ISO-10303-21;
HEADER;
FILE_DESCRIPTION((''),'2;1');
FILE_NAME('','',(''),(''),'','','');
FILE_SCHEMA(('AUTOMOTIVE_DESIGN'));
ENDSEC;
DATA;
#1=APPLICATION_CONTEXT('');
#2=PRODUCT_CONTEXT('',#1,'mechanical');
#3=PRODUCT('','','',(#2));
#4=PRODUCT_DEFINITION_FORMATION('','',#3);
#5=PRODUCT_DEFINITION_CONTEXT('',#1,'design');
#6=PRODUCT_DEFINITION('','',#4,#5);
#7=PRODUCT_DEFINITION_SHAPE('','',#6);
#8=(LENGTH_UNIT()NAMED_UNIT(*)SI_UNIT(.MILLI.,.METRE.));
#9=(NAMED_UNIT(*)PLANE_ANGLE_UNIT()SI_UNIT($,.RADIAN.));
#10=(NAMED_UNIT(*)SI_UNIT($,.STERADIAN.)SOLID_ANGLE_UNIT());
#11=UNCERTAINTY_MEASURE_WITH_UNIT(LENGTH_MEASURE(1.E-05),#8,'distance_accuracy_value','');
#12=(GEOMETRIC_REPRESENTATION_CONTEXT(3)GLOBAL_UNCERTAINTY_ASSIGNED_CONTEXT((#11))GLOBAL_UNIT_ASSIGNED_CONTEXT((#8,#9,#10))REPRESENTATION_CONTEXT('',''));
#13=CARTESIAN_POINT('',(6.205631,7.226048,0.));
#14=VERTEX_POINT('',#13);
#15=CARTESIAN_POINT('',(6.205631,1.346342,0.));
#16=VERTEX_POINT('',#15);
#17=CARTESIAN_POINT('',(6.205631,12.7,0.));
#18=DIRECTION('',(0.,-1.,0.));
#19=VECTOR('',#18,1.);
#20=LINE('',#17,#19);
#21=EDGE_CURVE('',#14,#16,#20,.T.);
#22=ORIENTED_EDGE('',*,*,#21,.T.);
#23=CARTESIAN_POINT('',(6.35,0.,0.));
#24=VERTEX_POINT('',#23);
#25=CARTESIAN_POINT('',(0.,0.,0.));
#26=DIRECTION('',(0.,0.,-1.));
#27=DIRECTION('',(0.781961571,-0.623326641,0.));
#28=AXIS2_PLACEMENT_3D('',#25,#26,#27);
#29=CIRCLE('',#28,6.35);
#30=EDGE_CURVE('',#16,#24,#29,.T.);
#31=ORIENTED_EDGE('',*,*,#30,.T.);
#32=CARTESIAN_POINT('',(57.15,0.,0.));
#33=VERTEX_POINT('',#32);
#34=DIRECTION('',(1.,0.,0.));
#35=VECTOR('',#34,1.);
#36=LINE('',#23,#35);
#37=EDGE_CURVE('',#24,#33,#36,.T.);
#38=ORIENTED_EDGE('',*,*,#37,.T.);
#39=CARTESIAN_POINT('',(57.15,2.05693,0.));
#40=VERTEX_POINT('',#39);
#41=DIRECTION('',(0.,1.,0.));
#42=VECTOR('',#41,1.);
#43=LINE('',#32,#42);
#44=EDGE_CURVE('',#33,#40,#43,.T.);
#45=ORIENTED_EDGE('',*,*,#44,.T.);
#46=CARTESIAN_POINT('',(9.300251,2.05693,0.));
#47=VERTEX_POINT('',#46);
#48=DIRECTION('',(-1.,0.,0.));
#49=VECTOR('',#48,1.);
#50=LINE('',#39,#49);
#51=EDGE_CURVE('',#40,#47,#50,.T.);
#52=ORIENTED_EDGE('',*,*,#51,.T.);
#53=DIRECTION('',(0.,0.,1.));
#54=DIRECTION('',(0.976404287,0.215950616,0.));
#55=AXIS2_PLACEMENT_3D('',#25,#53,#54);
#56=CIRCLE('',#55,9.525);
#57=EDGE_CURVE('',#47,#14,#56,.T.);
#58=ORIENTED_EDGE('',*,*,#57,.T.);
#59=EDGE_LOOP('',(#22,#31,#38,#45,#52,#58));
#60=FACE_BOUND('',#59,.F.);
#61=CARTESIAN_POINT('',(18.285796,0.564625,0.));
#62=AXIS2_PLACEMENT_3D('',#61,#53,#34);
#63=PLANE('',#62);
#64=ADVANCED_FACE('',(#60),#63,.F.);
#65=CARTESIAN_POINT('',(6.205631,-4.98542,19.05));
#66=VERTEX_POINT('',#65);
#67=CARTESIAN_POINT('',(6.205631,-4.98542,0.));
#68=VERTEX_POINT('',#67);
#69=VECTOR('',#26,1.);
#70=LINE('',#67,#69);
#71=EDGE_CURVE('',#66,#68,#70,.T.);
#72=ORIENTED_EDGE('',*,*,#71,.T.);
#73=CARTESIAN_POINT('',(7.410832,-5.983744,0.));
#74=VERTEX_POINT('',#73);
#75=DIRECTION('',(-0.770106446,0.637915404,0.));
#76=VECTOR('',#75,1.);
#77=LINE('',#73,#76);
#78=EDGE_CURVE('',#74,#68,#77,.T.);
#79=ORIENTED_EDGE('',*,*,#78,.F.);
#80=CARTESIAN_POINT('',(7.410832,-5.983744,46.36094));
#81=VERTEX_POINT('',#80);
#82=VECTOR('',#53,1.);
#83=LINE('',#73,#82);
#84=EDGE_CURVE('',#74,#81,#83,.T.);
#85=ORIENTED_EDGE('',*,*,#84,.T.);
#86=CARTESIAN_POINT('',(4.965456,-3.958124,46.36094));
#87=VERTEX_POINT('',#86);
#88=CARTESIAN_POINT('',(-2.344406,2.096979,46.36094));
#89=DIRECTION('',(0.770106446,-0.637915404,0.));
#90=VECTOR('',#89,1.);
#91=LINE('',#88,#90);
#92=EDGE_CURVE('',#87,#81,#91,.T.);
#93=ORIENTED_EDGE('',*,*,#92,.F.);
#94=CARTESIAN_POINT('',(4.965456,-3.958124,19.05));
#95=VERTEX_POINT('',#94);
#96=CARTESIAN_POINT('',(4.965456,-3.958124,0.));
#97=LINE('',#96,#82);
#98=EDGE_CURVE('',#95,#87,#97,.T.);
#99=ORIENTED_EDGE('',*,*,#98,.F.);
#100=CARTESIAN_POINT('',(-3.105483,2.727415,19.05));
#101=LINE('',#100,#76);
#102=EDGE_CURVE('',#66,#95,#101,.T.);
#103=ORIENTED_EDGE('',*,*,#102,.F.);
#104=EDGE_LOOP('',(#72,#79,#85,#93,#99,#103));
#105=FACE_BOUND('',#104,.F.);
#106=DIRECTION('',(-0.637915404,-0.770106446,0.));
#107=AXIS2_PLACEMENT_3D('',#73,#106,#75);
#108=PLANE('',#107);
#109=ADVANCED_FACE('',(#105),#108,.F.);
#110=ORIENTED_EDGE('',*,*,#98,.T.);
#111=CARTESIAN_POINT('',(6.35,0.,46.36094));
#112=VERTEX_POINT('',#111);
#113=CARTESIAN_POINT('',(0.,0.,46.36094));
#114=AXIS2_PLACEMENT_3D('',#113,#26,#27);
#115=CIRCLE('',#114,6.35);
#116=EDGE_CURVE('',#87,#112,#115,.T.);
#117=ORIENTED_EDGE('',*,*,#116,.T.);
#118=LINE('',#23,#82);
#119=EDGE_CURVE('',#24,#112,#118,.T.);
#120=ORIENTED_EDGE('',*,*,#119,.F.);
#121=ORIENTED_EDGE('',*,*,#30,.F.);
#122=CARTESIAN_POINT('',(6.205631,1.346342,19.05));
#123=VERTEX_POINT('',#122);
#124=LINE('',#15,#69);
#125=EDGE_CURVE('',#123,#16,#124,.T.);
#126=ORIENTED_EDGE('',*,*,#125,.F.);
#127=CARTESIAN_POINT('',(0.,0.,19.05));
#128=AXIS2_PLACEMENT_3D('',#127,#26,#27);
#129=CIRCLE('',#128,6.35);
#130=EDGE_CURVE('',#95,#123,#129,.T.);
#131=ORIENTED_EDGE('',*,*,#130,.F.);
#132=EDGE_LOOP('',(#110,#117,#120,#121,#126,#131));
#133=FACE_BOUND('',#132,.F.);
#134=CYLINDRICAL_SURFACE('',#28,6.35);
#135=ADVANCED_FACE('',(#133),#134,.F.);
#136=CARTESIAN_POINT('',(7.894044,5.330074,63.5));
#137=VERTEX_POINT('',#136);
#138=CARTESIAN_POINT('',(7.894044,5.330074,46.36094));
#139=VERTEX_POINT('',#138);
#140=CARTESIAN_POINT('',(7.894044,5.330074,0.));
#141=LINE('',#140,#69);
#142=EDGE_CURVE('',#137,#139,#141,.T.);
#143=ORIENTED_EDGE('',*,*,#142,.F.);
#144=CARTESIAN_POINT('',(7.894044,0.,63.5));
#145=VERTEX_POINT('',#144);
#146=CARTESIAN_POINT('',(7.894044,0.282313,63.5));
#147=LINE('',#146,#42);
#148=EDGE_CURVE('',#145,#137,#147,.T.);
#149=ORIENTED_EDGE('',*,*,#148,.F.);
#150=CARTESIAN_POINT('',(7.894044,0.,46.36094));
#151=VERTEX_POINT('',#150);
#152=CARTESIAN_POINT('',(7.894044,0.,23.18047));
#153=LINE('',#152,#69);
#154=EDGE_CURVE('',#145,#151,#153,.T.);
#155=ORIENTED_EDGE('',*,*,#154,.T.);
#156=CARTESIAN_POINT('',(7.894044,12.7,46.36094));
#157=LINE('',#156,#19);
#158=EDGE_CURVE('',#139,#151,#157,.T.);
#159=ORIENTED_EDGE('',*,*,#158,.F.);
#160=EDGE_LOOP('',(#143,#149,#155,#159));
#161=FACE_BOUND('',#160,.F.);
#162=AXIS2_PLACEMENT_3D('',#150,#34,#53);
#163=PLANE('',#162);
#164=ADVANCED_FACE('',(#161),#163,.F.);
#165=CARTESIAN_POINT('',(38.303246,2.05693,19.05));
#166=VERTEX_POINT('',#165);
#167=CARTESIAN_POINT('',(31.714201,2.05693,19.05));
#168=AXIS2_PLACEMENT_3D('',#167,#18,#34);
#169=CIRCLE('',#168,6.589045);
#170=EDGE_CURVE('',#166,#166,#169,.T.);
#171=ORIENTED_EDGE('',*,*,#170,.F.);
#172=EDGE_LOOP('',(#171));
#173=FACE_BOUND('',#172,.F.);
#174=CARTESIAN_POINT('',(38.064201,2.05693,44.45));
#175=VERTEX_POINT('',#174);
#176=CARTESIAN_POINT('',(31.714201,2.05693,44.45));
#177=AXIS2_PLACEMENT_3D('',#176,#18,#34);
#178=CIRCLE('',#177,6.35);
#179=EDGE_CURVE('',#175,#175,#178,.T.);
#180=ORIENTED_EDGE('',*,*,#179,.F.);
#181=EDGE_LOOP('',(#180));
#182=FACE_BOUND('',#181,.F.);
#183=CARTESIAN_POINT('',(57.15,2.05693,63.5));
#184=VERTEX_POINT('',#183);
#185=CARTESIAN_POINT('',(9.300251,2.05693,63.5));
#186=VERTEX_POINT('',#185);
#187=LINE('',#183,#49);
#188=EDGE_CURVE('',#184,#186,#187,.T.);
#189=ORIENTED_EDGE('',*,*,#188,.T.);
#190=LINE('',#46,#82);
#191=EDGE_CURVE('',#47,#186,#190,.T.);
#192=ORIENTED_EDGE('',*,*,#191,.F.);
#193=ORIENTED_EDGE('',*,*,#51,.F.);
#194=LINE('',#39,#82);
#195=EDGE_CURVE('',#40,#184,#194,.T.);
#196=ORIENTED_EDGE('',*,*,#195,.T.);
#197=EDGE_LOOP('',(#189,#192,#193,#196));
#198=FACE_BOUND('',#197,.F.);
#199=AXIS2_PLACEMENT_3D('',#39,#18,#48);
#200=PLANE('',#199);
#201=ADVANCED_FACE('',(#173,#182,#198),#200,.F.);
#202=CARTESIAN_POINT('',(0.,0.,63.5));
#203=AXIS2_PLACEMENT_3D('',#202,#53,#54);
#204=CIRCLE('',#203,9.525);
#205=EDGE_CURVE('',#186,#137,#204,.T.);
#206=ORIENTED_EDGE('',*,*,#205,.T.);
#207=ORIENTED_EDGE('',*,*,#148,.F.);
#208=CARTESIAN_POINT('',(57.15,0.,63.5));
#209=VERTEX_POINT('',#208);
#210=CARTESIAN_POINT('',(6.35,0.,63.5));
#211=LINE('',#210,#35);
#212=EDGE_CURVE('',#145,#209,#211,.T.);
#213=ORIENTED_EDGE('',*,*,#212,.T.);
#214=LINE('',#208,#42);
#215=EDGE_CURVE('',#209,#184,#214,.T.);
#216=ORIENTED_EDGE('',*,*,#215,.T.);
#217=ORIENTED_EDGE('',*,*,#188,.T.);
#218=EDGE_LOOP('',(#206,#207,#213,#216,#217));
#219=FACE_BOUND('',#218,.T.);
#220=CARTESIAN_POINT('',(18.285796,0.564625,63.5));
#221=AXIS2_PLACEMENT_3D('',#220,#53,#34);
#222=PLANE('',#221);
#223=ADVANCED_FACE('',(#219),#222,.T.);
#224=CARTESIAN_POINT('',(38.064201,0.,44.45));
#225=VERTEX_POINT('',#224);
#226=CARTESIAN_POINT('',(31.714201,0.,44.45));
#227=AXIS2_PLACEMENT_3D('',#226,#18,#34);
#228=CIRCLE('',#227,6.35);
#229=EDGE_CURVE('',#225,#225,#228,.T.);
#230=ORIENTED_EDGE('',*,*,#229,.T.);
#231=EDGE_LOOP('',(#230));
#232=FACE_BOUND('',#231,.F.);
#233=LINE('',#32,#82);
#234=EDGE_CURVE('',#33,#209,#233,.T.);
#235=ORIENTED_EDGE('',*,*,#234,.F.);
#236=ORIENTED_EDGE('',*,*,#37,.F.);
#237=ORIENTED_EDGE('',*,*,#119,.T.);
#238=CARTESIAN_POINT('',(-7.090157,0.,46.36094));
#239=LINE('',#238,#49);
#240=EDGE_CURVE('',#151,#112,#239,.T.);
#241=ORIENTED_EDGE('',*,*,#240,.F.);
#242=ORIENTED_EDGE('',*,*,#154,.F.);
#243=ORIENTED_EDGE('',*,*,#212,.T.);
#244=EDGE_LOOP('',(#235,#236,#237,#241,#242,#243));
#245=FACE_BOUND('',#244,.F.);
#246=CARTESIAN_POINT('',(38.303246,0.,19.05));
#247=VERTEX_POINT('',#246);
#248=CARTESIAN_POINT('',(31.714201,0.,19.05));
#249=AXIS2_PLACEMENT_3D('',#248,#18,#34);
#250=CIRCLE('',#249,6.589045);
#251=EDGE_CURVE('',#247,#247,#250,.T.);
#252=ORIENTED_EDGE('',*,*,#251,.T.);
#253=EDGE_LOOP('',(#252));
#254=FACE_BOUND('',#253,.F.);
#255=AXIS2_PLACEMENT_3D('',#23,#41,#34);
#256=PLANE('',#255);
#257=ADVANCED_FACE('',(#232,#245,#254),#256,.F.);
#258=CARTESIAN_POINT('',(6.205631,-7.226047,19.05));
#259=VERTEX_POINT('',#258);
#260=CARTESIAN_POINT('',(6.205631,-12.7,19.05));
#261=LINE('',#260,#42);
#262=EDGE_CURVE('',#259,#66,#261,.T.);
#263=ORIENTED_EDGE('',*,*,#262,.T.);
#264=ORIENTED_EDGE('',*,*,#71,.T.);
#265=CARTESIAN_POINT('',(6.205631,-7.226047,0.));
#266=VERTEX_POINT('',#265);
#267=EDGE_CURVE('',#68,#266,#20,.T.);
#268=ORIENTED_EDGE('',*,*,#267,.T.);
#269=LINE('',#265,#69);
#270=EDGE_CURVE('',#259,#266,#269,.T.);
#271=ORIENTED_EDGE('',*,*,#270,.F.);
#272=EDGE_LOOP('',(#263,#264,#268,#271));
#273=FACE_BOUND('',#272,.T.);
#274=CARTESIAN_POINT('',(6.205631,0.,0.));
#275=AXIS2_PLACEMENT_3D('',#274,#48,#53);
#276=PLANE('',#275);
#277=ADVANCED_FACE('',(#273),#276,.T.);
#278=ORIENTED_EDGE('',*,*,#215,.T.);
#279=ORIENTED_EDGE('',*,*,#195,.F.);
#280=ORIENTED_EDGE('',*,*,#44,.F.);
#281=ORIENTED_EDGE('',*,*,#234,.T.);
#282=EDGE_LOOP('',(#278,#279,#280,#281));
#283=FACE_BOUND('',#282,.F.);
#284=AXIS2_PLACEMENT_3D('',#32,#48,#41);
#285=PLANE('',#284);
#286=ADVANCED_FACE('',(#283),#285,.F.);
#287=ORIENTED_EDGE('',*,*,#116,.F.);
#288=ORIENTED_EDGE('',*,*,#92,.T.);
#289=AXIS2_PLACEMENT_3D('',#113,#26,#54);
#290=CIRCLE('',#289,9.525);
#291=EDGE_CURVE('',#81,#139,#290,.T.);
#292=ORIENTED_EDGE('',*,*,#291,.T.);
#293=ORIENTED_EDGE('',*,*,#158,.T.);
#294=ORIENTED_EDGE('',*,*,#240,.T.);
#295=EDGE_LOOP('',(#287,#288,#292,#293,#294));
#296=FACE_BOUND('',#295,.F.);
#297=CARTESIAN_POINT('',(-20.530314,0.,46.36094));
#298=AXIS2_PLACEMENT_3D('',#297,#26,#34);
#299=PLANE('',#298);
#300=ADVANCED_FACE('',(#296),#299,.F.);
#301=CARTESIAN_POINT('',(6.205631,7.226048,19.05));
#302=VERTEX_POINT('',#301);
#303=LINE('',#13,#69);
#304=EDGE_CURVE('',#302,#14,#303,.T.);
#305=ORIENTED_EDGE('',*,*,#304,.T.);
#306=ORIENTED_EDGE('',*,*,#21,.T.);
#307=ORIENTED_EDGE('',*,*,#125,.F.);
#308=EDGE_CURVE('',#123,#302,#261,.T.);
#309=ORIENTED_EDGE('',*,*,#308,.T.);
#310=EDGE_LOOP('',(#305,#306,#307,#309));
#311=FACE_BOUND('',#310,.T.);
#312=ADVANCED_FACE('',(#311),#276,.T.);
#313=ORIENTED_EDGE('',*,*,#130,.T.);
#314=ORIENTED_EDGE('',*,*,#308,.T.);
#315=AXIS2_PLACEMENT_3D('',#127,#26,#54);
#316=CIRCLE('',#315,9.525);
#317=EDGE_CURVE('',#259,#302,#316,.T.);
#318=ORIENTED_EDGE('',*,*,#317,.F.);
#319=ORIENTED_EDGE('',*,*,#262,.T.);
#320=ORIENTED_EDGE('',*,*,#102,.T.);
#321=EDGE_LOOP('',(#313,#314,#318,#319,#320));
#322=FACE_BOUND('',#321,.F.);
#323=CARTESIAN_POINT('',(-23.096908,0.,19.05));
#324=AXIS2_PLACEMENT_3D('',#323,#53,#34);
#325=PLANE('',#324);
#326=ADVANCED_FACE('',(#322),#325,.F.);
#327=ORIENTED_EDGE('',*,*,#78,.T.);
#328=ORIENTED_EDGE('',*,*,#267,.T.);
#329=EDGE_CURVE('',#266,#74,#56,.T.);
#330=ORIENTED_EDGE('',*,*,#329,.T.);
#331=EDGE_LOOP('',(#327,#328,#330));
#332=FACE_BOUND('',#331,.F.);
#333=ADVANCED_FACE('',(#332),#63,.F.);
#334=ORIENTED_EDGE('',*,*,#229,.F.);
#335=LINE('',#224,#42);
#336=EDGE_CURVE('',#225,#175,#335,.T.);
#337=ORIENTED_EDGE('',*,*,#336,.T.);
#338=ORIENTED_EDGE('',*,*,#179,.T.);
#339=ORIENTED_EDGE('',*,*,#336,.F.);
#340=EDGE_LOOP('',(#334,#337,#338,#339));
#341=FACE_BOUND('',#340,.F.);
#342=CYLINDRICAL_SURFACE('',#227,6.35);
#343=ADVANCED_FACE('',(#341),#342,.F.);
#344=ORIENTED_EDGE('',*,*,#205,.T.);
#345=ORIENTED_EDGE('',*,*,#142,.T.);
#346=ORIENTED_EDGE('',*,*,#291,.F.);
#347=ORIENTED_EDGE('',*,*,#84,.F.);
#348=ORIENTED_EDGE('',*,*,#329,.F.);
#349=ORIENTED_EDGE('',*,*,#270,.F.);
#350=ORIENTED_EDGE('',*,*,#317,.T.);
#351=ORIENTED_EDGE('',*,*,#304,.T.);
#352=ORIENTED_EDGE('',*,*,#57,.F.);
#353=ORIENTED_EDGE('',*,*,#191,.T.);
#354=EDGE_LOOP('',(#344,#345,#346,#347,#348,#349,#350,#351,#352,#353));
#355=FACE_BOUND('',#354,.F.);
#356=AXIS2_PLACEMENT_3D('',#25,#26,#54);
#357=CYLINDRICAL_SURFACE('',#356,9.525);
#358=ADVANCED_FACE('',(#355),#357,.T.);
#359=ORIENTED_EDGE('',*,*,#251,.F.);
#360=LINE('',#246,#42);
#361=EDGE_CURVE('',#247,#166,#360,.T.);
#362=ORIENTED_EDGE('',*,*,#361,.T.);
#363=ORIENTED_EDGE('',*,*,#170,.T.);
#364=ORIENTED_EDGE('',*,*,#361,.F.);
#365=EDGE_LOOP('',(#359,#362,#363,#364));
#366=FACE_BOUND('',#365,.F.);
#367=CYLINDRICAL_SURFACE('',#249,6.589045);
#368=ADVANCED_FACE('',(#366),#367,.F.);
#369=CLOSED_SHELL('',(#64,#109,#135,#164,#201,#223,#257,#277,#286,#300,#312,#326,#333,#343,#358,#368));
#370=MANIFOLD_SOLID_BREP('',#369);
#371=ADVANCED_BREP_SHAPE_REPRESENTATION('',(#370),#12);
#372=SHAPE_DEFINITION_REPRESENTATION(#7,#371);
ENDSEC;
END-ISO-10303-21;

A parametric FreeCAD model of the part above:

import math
import FreeCAD as App
import Part
import Sketcher
Q = App.Units.Quantity

doc = App.newDocument("Part")
body = doc.addObject("PartDesign::Body", "Body")

# Sketch on XY plane
sketch1 = body.newObject("Sketcher::SketchObject", "Sketch")
sketch1.AttachmentSupport = (doc.getObject("XY_Plane"), [""])
sketch1.MapMode = "FlatFace"
sketch1.addGeometry(Part.ArcOfCircle(Part.Circle(App.Vector(0, 0, 0), App.Vector(0, 0, 1), 6.3), math.radians(0), math.radians(321)), False)
sketch1.addGeometry(Part.LineSegment(App.Vector(6.3, 0, 0), App.Vector(57.1, 0, 0)), False)
sketch1.addGeometry(Part.LineSegment(App.Vector(57.1, 0, 0), App.Vector(57.1, 2.1, 0)), False)
sketch1.addGeometry(Part.LineSegment(App.Vector(57.1, 2.1, 0), App.Vector(9.3, 2.1, 0)), False)
sketch1.addGeometry(Part.ArcOfCircle(Part.Circle(App.Vector(0, 0, 0), App.Vector(0, 0, 1), 9.5), math.radians(12), math.radians(321)), False)
sketch1.addGeometry(Part.LineSegment(App.Vector(7.4, -6, 0), App.Vector(5, -4, 0)), False)
sketch1.addConstraint(Sketcher.Constraint("Coincident", 0, 1, 1, 1))
sketch1.addConstraint(Sketcher.Constraint("Coincident", 1, 2, 2, 1))
sketch1.addConstraint(Sketcher.Constraint("Coincident", 2, 2, 3, 1))
sketch1.addConstraint(Sketcher.Constraint("Coincident", 3, 2, 4, 1))
sketch1.addConstraint(Sketcher.Constraint("Coincident", 4, 2, 5, 1))
sketch1.addConstraint(Sketcher.Constraint("Coincident", 5, 2, 0, 2))
sketch1.addConstraint(Sketcher.Constraint("Horizontal", 1))
sketch1.addConstraint(Sketcher.Constraint("Vertical", 2))
sketch1.addConstraint(Sketcher.Constraint("Horizontal", 3))
sketch1.addConstraint(Sketcher.Constraint("Coincident", 0, 3, -1, 1))
sketch1.addConstraint(Sketcher.Constraint("Coincident", 4, 3, -1, 1))
sketch1.addConstraint(Sketcher.Constraint("PointOnObject", 0, 1, -1))
sketch1.addConstraint(Sketcher.Constraint("DistanceX", 1, 1, 1, 2, Q("2 in")))
sketch1.addConstraint(Sketcher.Constraint("Radius", 0, Q("0.25 in")))
sketch1.addConstraint(Sketcher.Constraint("Radius", 4, Q("0.375 in")))
sketch1.addConstraint(Sketcher.Constraint("DistanceX", 3, 2, 3, 1, Q("47.849749 mm")))
sketch1.addConstraint(Sketcher.Constraint("DistanceX", 4, 2, 3, 2, Q("1.889419 mm")))
sketch1.addConstraint(Sketcher.Constraint("DistanceY", 4, 2, 5, 2, Q("2.02562 mm")))
pad1 = body.newObject("PartDesign::Pad", "Pad")
pad1.Profile = sketch1
pad1.Length = Q("2.5 in")

# Sketch on XZ plane
sketch2 = body.newObject("Sketcher::SketchObject", "Sketch001")
sketch2.AttachmentSupport = (doc.getObject("XZ_Plane"), [""])
sketch2.MapMode = "FlatFace"
sketch2.addGeometry(Part.Circle(App.Vector(32, 44, 0), App.Vector(0, 0, 1), 6), False)
sketch2.addGeometry(Part.Circle(App.Vector(32, 19, 0), App.Vector(0, 0, 1), 7), False)
sketch2.addConstraint(Sketcher.Constraint("Vertical", 0, 3, 1, 3))
sketch2.addConstraint(Sketcher.Constraint("Diameter", 0, Q("0.5 in")))
sketch2.addConstraint(Sketcher.Constraint("DistanceY", 1, 3, 0, 3, Q("1 in")))
sketch2.addConstraint(Sketcher.Constraint("DistanceY", -1, 1, 0, 3, Q("1.75 in")))
sketch2.addConstraint(Sketcher.Constraint("Diameter", 1, Q("13.17809 mm")))
sketch2.addConstraint(Sketcher.Constraint("DistanceX", -1, 1, 0, 3, Q("31.714201 mm")))
pocket1 = body.newObject("PartDesign::Pocket", "Pocket")
pocket1.Profile = sketch2
pocket1.Type = "ThroughAll"

# Sketch on XZ plane
sketch3 = body.newObject("Sketcher::SketchObject", "Sketch002")
sketch3.AttachmentSupport = (doc.getObject("XZ_Plane"), [""])
sketch3.MapMode = "FlatFace"
sketch3.addGeometry(Part.LineSegment(App.Vector(-23, 19, 0), App.Vector(-23, 0, 0)), False)
sketch3.addGeometry(Part.LineSegment(App.Vector(-23, 0, 0), App.Vector(6, 0, 0)), False)
sketch3.addGeometry(Part.LineSegment(App.Vector(6, 0, 0), App.Vector(6, 19, 0)), False)
sketch3.addGeometry(Part.LineSegment(App.Vector(6, 19, 0), App.Vector(-23, 19, 0)), False)
sketch3.addGeometry(Part.LineSegment(App.Vector(-21, 65, 0), App.Vector(-21, 46, 0)), False)
sketch3.addGeometry(Part.LineSegment(App.Vector(-21, 46, 0), App.Vector(8, 46, 0)), False)
sketch3.addGeometry(Part.LineSegment(App.Vector(8, 46, 0), App.Vector(8, 65, 0)), False)
sketch3.addGeometry(Part.LineSegment(App.Vector(8, 65, 0), App.Vector(-21, 65, 0)), False)
sketch3.addConstraint(Sketcher.Constraint("Coincident", 0, 2, 1, 1))
sketch3.addConstraint(Sketcher.Constraint("Coincident", 1, 2, 2, 1))
sketch3.addConstraint(Sketcher.Constraint("Coincident", 2, 2, 3, 1))
sketch3.addConstraint(Sketcher.Constraint("Coincident", 3, 2, 0, 1))
sketch3.addConstraint(Sketcher.Constraint("Coincident", 4, 2, 5, 1))
sketch3.addConstraint(Sketcher.Constraint("Coincident", 5, 2, 6, 1))
sketch3.addConstraint(Sketcher.Constraint("Coincident", 6, 2, 7, 1))
sketch3.addConstraint(Sketcher.Constraint("Coincident", 7, 2, 4, 1))
sketch3.addConstraint(Sketcher.Constraint("Vertical", 0))
sketch3.addConstraint(Sketcher.Constraint("Horizontal", 1))
sketch3.addConstraint(Sketcher.Constraint("Vertical", 2))
sketch3.addConstraint(Sketcher.Constraint("Horizontal", 3))
sketch3.addConstraint(Sketcher.Constraint("Vertical", 4))
sketch3.addConstraint(Sketcher.Constraint("Horizontal", 5))
sketch3.addConstraint(Sketcher.Constraint("Vertical", 6))
sketch3.addConstraint(Sketcher.Constraint("Horizontal", 7))
sketch3.addConstraint(Sketcher.Constraint("PointOnObject", 0, 2, -1))
sketch3.addConstraint(Sketcher.Constraint("Equal", 2, 4))
sketch3.addConstraint(Sketcher.Constraint("DistanceY", 0, 2, 0, 1, Q("0.75 in")))
sketch3.addConstraint(Sketcher.Constraint("DistanceX", 1, 1, 1, 2, Q("29.302539 mm")))
sketch3.addConstraint(Sketcher.Constraint("DistanceX", 5, 1, 5, 2, Q("28.424359 mm")))
sketch3.addConstraint(Sketcher.Constraint("DistanceX", -1, 1, 1, 2, Q("6.205631 mm")))
sketch3.addConstraint(Sketcher.Constraint("DistanceY", -1, 1, 4, 2, Q("46.36094 mm")))
sketch3.addConstraint(Sketcher.Constraint("DistanceX", 3, 2, 5, 2, Q("30.990952 mm")))
pocket2 = body.newObject("PartDesign::Pocket", "Pocket001")
pocket2.Profile = sketch3
pocket2.Length = Q("1 in")
pocket2.Midplane = True

doc.recompute()
